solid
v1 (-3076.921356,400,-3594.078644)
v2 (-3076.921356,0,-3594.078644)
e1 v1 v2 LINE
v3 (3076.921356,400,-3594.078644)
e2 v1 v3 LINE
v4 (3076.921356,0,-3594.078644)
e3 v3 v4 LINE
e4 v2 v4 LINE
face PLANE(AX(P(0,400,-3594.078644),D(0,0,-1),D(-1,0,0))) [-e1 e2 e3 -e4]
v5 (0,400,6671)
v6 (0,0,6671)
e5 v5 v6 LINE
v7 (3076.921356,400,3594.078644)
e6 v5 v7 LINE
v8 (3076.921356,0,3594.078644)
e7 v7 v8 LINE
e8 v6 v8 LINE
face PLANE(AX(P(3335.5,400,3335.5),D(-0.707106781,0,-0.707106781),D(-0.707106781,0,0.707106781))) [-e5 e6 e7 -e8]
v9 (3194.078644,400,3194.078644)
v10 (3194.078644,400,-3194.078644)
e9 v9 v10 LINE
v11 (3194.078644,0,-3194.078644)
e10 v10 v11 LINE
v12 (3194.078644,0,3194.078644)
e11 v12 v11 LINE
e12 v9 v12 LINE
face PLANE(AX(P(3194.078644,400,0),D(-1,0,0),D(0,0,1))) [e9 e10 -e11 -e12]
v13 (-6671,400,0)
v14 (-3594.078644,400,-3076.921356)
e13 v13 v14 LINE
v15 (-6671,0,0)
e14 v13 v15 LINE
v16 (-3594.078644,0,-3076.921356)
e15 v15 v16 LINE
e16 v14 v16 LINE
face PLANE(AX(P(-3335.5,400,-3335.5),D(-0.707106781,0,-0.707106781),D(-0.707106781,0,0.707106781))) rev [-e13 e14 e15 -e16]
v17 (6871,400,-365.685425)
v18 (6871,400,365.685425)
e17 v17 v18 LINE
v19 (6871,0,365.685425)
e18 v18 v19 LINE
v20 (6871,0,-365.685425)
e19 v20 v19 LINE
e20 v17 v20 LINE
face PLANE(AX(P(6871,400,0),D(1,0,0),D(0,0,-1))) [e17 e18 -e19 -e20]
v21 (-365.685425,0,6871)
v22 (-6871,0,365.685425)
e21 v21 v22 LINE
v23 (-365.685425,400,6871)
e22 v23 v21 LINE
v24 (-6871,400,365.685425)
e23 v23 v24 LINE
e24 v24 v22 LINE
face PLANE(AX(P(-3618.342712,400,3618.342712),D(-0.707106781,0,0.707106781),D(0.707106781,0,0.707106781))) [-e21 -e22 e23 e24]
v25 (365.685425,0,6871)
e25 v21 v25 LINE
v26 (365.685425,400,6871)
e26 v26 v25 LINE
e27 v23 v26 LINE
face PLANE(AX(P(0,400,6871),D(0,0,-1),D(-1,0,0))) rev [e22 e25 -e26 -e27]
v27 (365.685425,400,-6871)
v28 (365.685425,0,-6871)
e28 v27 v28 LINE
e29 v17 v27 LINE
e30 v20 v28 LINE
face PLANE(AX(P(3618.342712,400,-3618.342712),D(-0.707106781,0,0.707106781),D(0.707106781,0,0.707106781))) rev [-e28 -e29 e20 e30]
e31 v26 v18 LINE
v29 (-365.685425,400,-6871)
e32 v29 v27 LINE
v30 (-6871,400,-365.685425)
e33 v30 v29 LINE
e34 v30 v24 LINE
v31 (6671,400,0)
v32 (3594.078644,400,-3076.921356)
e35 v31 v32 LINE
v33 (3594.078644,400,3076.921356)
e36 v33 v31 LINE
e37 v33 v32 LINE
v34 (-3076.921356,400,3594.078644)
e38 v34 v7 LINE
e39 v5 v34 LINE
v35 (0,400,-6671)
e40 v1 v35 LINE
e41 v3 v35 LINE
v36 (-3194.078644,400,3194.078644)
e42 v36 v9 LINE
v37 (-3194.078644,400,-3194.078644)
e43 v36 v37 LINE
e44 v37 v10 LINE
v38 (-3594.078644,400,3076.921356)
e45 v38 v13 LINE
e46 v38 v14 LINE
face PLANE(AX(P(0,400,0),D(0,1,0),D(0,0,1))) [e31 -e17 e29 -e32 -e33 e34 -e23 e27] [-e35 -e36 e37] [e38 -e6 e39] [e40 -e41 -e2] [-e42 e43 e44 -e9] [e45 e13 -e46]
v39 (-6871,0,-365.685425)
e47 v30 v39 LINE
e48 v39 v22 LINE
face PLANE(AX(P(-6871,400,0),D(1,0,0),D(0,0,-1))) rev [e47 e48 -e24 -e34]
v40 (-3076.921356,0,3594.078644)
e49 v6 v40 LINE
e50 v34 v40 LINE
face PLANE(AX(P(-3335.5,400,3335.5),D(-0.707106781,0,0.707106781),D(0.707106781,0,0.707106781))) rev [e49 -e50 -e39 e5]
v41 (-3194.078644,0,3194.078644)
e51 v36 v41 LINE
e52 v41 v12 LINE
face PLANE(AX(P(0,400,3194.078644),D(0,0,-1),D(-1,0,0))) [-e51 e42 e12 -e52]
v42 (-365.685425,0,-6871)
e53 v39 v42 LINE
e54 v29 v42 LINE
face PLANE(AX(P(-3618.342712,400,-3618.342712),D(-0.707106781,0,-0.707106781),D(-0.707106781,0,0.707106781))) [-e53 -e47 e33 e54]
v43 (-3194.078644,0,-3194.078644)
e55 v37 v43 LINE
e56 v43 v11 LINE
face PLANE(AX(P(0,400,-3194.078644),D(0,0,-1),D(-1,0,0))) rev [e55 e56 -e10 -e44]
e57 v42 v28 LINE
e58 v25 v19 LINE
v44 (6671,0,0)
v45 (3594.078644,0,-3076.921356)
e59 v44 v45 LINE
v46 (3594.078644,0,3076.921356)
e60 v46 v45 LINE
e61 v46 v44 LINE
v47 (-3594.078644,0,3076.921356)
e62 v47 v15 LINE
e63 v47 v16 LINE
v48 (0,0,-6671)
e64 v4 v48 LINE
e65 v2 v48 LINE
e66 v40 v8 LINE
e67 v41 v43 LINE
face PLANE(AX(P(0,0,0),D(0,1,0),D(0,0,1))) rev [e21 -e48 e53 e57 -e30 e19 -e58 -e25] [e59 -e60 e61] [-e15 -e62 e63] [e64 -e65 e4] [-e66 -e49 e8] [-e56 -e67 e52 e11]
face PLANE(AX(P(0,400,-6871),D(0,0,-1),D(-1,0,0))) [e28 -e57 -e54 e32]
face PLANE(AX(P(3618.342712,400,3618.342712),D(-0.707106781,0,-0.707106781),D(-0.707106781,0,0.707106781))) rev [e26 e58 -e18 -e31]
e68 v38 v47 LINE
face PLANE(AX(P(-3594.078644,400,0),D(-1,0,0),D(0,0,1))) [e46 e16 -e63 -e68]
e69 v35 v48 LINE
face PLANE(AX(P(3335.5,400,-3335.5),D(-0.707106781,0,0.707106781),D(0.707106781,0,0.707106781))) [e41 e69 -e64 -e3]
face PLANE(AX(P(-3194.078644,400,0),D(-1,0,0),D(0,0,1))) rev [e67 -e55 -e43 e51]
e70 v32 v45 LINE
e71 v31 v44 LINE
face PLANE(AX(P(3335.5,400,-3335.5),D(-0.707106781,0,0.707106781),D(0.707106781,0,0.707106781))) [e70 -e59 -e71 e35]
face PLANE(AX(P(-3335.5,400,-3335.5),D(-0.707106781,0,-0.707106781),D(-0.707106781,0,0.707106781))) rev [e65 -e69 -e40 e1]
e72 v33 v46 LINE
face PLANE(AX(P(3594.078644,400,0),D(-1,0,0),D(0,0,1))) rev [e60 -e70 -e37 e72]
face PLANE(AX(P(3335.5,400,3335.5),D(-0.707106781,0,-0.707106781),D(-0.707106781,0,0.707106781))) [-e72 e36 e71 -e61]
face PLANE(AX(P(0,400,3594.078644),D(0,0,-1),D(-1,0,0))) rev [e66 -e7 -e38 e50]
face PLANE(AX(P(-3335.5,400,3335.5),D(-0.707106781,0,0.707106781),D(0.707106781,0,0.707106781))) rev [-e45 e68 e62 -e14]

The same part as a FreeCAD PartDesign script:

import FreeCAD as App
import Part
import Sketcher

V = App.Vector
Q = App.Units.Quantity


def add_polygon(sketch, points):
    """Adds a closed chain of lines whose ends are joined by coincident constraints."""
    first, n = sketch.GeometryCount, len(points)
    for a, b in zip(points, points[1:] + points[:1]):
        sketch.addGeometry(Part.LineSegment(App.Vector(*a, 0), App.Vector(*b, 0)), False)
    for i in range(n):
        sketch.addConstraint(Sketcher.Constraint("Coincident", first + i, 2, first + (i + 1) % n, 1))

doc = App.newDocument("Part")
body = doc.addObject("PartDesign::Body", "Body")

# Sketch on XZ plane
sketch1 = doc.addObject("Sketcher::SketchObject", "Sketch")
body.addObject(sketch1)
sketch1.AttachmentSupport = (doc.XZ_Plane, [""])
sketch1.MapMode = "FlatFace"
add_polygon(sketch1, [(-365.685425, -6871), (-6871, -365.685425), (-6871, 365.685425), (-365.685425, 6871), (365.685425, 6871), (6871, 365.685425), (6871, -365.685425), (365.685425, -6871)])  # lines 0-7
add_polygon(sketch1, [(0, 6671), (-3076.921356, 3594.078644), (3076.921356, 3594.078644)])  # lines 8-10
add_polygon(sketch1, [(6671, 0), (3594.078644, 3076.921356), (3594.078644, -3076.921356)])  # lines 11-13
add_polygon(sketch1, [(-3194.078644, 3194.078644), (-3194.078644, -3194.078644), (3194.078644, -3194.078644), (3194.078644, 3194.078644)])  # lines 14-17
add_polygon(sketch1, [(-6671, 0), (-3594.078644, -3076.921356), (-3594.078644, 3076.921356)])  # lines 18-20
add_polygon(sketch1, [(-3076.921356, -3594.078644), (0, -6671), (3076.921356, -3594.078644)])  # lines 21-23
sketch1.addConstraint(Sketcher.Constraint("Vertical", 1))
sketch1.addConstraint(Sketcher.Constraint("Horizontal", 3))
sketch1.addConstraint(Sketcher.Constraint("Vertical", 5))
sketch1.addConstraint(Sketcher.Constraint("Horizontal", 7))
sketch1.addConstraint(Sketcher.Constraint("Horizontal", 9))
sketch1.addConstraint(Sketcher.Constraint("Vertical", 12))
sketch1.addConstraint(Sketcher.Constraint("Vertical", 14))
sketch1.addConstraint(Sketcher.Constraint("Horizontal", 15))
sketch1.addConstraint(Sketcher.Constraint("Vertical", 16))
sketch1.addConstraint(Sketcher.Constraint("Horizontal", 17))
sketch1.addConstraint(Sketcher.Constraint("Vertical", 19))
sketch1.addConstraint(Sketcher.Constraint("Horizontal", 23))
sketch1.addConstraint(Sketcher.Constraint("Symmetric", 0, 2, 4, 2, -1, 1))
sketch1.addConstraint(Sketcher.Constraint("Symmetric", 2, 2, 6, 2, -1, 1))
sketch1.addConstraint(Sketcher.Constraint("Symmetric", 14, 2, 16, 2, -1, 1))
sketch1.addConstraint(Sketcher.Constraint("Symmetric", 11, 2, 18, 2, -1, 1))
sketch1.addConstraint(Sketcher.Constraint("Symmetric", 13, 2, 20, 2, -1, 1))
sketch1.addConstraint(Sketcher.Constraint("Symmetric", 10, 2, 21, 2, -1, 1))
sketch1.addConstraint(Sketcher.Constraint("Symmetric", 8, 2, 22, 2, -1, 1))
sketch1.addConstraint(Sketcher.Constraint("PointOnObject", 10, 2, -2))
sketch1.addConstraint(Sketcher.Constraint("PointOnObject", 13, 2, -1))
sketch1.addConstraint(Sketcher.Constraint("Perpendicular", 0, 2))
sketch1.addConstraint(Sketcher.Constraint("Perpendicular", 2, 4))
sketch1.addConstraint(Sketcher.Constraint("Perpendicular", 4, 6))
sketch1.addConstraint(Sketcher.Constraint("Parallel", 6, 8))
sketch1.addConstraint(Sketcher.Constraint("Perpendicular", 8, 10))
sketch1.addConstraint(Sketcher.Constraint("Parallel", 10, 11))
sketch1.addConstraint(Sketcher.Constraint("Perpendicular", 11, 13))
sketch1.addConstraint(Sketcher.Constraint("Perpendicular", 18, 20))
sketch1.addConstraint(Sketcher.Constraint("Perpendicular", 20, 21))
sketch1.addConstraint(Sketcher.Constraint("Horizontal", 1, 2, 4, 2))
sketch1.addConstraint(Sketcher.Constraint("Horizontal", 12, 2, 18, 2))
sketch1.addConstraint(Sketcher.Constraint("Equal", 7, 1))
sketch1.addConstraint(Sketcher.Constraint("Equal", 23, 12))
sketch1.addConstraint(Sketcher.Constraint("Equal", 17, 14))
sketch1.addConstraint(Sketcher.Constraint("DistanceX", 0, 2, -1, 1, Q("6871 mm")))
sketch1.addConstraint(Sketcher.Constraint("DistanceY", -1, 1, 10, 2, Q("6671 mm")))
sketch1.addConstraint(Sketcher.Constraint("DistanceX", -1, 1, 13, 2, Q("6671 mm")))
sketch1.addConstraint(Sketcher.Constraint("DistanceX", 15, 2, 12, 2, Q("400 mm")))
sketch1.addConstraint(Sketcher.Constraint("Distance", 0, Q("9199.9041 mm")))
sketch1.addConstraint(Sketcher.Constraint("DistanceX", 9, 1, 9, 2, Q("6153.842712 mm")))
pad1 = doc.addObject("PartDesign::Pad", "Pad")
body.addObject(pad1)
pad1.Profile = sketch1
pad1.Length = 400
pad1.Reversed = True

doc.recompute()
